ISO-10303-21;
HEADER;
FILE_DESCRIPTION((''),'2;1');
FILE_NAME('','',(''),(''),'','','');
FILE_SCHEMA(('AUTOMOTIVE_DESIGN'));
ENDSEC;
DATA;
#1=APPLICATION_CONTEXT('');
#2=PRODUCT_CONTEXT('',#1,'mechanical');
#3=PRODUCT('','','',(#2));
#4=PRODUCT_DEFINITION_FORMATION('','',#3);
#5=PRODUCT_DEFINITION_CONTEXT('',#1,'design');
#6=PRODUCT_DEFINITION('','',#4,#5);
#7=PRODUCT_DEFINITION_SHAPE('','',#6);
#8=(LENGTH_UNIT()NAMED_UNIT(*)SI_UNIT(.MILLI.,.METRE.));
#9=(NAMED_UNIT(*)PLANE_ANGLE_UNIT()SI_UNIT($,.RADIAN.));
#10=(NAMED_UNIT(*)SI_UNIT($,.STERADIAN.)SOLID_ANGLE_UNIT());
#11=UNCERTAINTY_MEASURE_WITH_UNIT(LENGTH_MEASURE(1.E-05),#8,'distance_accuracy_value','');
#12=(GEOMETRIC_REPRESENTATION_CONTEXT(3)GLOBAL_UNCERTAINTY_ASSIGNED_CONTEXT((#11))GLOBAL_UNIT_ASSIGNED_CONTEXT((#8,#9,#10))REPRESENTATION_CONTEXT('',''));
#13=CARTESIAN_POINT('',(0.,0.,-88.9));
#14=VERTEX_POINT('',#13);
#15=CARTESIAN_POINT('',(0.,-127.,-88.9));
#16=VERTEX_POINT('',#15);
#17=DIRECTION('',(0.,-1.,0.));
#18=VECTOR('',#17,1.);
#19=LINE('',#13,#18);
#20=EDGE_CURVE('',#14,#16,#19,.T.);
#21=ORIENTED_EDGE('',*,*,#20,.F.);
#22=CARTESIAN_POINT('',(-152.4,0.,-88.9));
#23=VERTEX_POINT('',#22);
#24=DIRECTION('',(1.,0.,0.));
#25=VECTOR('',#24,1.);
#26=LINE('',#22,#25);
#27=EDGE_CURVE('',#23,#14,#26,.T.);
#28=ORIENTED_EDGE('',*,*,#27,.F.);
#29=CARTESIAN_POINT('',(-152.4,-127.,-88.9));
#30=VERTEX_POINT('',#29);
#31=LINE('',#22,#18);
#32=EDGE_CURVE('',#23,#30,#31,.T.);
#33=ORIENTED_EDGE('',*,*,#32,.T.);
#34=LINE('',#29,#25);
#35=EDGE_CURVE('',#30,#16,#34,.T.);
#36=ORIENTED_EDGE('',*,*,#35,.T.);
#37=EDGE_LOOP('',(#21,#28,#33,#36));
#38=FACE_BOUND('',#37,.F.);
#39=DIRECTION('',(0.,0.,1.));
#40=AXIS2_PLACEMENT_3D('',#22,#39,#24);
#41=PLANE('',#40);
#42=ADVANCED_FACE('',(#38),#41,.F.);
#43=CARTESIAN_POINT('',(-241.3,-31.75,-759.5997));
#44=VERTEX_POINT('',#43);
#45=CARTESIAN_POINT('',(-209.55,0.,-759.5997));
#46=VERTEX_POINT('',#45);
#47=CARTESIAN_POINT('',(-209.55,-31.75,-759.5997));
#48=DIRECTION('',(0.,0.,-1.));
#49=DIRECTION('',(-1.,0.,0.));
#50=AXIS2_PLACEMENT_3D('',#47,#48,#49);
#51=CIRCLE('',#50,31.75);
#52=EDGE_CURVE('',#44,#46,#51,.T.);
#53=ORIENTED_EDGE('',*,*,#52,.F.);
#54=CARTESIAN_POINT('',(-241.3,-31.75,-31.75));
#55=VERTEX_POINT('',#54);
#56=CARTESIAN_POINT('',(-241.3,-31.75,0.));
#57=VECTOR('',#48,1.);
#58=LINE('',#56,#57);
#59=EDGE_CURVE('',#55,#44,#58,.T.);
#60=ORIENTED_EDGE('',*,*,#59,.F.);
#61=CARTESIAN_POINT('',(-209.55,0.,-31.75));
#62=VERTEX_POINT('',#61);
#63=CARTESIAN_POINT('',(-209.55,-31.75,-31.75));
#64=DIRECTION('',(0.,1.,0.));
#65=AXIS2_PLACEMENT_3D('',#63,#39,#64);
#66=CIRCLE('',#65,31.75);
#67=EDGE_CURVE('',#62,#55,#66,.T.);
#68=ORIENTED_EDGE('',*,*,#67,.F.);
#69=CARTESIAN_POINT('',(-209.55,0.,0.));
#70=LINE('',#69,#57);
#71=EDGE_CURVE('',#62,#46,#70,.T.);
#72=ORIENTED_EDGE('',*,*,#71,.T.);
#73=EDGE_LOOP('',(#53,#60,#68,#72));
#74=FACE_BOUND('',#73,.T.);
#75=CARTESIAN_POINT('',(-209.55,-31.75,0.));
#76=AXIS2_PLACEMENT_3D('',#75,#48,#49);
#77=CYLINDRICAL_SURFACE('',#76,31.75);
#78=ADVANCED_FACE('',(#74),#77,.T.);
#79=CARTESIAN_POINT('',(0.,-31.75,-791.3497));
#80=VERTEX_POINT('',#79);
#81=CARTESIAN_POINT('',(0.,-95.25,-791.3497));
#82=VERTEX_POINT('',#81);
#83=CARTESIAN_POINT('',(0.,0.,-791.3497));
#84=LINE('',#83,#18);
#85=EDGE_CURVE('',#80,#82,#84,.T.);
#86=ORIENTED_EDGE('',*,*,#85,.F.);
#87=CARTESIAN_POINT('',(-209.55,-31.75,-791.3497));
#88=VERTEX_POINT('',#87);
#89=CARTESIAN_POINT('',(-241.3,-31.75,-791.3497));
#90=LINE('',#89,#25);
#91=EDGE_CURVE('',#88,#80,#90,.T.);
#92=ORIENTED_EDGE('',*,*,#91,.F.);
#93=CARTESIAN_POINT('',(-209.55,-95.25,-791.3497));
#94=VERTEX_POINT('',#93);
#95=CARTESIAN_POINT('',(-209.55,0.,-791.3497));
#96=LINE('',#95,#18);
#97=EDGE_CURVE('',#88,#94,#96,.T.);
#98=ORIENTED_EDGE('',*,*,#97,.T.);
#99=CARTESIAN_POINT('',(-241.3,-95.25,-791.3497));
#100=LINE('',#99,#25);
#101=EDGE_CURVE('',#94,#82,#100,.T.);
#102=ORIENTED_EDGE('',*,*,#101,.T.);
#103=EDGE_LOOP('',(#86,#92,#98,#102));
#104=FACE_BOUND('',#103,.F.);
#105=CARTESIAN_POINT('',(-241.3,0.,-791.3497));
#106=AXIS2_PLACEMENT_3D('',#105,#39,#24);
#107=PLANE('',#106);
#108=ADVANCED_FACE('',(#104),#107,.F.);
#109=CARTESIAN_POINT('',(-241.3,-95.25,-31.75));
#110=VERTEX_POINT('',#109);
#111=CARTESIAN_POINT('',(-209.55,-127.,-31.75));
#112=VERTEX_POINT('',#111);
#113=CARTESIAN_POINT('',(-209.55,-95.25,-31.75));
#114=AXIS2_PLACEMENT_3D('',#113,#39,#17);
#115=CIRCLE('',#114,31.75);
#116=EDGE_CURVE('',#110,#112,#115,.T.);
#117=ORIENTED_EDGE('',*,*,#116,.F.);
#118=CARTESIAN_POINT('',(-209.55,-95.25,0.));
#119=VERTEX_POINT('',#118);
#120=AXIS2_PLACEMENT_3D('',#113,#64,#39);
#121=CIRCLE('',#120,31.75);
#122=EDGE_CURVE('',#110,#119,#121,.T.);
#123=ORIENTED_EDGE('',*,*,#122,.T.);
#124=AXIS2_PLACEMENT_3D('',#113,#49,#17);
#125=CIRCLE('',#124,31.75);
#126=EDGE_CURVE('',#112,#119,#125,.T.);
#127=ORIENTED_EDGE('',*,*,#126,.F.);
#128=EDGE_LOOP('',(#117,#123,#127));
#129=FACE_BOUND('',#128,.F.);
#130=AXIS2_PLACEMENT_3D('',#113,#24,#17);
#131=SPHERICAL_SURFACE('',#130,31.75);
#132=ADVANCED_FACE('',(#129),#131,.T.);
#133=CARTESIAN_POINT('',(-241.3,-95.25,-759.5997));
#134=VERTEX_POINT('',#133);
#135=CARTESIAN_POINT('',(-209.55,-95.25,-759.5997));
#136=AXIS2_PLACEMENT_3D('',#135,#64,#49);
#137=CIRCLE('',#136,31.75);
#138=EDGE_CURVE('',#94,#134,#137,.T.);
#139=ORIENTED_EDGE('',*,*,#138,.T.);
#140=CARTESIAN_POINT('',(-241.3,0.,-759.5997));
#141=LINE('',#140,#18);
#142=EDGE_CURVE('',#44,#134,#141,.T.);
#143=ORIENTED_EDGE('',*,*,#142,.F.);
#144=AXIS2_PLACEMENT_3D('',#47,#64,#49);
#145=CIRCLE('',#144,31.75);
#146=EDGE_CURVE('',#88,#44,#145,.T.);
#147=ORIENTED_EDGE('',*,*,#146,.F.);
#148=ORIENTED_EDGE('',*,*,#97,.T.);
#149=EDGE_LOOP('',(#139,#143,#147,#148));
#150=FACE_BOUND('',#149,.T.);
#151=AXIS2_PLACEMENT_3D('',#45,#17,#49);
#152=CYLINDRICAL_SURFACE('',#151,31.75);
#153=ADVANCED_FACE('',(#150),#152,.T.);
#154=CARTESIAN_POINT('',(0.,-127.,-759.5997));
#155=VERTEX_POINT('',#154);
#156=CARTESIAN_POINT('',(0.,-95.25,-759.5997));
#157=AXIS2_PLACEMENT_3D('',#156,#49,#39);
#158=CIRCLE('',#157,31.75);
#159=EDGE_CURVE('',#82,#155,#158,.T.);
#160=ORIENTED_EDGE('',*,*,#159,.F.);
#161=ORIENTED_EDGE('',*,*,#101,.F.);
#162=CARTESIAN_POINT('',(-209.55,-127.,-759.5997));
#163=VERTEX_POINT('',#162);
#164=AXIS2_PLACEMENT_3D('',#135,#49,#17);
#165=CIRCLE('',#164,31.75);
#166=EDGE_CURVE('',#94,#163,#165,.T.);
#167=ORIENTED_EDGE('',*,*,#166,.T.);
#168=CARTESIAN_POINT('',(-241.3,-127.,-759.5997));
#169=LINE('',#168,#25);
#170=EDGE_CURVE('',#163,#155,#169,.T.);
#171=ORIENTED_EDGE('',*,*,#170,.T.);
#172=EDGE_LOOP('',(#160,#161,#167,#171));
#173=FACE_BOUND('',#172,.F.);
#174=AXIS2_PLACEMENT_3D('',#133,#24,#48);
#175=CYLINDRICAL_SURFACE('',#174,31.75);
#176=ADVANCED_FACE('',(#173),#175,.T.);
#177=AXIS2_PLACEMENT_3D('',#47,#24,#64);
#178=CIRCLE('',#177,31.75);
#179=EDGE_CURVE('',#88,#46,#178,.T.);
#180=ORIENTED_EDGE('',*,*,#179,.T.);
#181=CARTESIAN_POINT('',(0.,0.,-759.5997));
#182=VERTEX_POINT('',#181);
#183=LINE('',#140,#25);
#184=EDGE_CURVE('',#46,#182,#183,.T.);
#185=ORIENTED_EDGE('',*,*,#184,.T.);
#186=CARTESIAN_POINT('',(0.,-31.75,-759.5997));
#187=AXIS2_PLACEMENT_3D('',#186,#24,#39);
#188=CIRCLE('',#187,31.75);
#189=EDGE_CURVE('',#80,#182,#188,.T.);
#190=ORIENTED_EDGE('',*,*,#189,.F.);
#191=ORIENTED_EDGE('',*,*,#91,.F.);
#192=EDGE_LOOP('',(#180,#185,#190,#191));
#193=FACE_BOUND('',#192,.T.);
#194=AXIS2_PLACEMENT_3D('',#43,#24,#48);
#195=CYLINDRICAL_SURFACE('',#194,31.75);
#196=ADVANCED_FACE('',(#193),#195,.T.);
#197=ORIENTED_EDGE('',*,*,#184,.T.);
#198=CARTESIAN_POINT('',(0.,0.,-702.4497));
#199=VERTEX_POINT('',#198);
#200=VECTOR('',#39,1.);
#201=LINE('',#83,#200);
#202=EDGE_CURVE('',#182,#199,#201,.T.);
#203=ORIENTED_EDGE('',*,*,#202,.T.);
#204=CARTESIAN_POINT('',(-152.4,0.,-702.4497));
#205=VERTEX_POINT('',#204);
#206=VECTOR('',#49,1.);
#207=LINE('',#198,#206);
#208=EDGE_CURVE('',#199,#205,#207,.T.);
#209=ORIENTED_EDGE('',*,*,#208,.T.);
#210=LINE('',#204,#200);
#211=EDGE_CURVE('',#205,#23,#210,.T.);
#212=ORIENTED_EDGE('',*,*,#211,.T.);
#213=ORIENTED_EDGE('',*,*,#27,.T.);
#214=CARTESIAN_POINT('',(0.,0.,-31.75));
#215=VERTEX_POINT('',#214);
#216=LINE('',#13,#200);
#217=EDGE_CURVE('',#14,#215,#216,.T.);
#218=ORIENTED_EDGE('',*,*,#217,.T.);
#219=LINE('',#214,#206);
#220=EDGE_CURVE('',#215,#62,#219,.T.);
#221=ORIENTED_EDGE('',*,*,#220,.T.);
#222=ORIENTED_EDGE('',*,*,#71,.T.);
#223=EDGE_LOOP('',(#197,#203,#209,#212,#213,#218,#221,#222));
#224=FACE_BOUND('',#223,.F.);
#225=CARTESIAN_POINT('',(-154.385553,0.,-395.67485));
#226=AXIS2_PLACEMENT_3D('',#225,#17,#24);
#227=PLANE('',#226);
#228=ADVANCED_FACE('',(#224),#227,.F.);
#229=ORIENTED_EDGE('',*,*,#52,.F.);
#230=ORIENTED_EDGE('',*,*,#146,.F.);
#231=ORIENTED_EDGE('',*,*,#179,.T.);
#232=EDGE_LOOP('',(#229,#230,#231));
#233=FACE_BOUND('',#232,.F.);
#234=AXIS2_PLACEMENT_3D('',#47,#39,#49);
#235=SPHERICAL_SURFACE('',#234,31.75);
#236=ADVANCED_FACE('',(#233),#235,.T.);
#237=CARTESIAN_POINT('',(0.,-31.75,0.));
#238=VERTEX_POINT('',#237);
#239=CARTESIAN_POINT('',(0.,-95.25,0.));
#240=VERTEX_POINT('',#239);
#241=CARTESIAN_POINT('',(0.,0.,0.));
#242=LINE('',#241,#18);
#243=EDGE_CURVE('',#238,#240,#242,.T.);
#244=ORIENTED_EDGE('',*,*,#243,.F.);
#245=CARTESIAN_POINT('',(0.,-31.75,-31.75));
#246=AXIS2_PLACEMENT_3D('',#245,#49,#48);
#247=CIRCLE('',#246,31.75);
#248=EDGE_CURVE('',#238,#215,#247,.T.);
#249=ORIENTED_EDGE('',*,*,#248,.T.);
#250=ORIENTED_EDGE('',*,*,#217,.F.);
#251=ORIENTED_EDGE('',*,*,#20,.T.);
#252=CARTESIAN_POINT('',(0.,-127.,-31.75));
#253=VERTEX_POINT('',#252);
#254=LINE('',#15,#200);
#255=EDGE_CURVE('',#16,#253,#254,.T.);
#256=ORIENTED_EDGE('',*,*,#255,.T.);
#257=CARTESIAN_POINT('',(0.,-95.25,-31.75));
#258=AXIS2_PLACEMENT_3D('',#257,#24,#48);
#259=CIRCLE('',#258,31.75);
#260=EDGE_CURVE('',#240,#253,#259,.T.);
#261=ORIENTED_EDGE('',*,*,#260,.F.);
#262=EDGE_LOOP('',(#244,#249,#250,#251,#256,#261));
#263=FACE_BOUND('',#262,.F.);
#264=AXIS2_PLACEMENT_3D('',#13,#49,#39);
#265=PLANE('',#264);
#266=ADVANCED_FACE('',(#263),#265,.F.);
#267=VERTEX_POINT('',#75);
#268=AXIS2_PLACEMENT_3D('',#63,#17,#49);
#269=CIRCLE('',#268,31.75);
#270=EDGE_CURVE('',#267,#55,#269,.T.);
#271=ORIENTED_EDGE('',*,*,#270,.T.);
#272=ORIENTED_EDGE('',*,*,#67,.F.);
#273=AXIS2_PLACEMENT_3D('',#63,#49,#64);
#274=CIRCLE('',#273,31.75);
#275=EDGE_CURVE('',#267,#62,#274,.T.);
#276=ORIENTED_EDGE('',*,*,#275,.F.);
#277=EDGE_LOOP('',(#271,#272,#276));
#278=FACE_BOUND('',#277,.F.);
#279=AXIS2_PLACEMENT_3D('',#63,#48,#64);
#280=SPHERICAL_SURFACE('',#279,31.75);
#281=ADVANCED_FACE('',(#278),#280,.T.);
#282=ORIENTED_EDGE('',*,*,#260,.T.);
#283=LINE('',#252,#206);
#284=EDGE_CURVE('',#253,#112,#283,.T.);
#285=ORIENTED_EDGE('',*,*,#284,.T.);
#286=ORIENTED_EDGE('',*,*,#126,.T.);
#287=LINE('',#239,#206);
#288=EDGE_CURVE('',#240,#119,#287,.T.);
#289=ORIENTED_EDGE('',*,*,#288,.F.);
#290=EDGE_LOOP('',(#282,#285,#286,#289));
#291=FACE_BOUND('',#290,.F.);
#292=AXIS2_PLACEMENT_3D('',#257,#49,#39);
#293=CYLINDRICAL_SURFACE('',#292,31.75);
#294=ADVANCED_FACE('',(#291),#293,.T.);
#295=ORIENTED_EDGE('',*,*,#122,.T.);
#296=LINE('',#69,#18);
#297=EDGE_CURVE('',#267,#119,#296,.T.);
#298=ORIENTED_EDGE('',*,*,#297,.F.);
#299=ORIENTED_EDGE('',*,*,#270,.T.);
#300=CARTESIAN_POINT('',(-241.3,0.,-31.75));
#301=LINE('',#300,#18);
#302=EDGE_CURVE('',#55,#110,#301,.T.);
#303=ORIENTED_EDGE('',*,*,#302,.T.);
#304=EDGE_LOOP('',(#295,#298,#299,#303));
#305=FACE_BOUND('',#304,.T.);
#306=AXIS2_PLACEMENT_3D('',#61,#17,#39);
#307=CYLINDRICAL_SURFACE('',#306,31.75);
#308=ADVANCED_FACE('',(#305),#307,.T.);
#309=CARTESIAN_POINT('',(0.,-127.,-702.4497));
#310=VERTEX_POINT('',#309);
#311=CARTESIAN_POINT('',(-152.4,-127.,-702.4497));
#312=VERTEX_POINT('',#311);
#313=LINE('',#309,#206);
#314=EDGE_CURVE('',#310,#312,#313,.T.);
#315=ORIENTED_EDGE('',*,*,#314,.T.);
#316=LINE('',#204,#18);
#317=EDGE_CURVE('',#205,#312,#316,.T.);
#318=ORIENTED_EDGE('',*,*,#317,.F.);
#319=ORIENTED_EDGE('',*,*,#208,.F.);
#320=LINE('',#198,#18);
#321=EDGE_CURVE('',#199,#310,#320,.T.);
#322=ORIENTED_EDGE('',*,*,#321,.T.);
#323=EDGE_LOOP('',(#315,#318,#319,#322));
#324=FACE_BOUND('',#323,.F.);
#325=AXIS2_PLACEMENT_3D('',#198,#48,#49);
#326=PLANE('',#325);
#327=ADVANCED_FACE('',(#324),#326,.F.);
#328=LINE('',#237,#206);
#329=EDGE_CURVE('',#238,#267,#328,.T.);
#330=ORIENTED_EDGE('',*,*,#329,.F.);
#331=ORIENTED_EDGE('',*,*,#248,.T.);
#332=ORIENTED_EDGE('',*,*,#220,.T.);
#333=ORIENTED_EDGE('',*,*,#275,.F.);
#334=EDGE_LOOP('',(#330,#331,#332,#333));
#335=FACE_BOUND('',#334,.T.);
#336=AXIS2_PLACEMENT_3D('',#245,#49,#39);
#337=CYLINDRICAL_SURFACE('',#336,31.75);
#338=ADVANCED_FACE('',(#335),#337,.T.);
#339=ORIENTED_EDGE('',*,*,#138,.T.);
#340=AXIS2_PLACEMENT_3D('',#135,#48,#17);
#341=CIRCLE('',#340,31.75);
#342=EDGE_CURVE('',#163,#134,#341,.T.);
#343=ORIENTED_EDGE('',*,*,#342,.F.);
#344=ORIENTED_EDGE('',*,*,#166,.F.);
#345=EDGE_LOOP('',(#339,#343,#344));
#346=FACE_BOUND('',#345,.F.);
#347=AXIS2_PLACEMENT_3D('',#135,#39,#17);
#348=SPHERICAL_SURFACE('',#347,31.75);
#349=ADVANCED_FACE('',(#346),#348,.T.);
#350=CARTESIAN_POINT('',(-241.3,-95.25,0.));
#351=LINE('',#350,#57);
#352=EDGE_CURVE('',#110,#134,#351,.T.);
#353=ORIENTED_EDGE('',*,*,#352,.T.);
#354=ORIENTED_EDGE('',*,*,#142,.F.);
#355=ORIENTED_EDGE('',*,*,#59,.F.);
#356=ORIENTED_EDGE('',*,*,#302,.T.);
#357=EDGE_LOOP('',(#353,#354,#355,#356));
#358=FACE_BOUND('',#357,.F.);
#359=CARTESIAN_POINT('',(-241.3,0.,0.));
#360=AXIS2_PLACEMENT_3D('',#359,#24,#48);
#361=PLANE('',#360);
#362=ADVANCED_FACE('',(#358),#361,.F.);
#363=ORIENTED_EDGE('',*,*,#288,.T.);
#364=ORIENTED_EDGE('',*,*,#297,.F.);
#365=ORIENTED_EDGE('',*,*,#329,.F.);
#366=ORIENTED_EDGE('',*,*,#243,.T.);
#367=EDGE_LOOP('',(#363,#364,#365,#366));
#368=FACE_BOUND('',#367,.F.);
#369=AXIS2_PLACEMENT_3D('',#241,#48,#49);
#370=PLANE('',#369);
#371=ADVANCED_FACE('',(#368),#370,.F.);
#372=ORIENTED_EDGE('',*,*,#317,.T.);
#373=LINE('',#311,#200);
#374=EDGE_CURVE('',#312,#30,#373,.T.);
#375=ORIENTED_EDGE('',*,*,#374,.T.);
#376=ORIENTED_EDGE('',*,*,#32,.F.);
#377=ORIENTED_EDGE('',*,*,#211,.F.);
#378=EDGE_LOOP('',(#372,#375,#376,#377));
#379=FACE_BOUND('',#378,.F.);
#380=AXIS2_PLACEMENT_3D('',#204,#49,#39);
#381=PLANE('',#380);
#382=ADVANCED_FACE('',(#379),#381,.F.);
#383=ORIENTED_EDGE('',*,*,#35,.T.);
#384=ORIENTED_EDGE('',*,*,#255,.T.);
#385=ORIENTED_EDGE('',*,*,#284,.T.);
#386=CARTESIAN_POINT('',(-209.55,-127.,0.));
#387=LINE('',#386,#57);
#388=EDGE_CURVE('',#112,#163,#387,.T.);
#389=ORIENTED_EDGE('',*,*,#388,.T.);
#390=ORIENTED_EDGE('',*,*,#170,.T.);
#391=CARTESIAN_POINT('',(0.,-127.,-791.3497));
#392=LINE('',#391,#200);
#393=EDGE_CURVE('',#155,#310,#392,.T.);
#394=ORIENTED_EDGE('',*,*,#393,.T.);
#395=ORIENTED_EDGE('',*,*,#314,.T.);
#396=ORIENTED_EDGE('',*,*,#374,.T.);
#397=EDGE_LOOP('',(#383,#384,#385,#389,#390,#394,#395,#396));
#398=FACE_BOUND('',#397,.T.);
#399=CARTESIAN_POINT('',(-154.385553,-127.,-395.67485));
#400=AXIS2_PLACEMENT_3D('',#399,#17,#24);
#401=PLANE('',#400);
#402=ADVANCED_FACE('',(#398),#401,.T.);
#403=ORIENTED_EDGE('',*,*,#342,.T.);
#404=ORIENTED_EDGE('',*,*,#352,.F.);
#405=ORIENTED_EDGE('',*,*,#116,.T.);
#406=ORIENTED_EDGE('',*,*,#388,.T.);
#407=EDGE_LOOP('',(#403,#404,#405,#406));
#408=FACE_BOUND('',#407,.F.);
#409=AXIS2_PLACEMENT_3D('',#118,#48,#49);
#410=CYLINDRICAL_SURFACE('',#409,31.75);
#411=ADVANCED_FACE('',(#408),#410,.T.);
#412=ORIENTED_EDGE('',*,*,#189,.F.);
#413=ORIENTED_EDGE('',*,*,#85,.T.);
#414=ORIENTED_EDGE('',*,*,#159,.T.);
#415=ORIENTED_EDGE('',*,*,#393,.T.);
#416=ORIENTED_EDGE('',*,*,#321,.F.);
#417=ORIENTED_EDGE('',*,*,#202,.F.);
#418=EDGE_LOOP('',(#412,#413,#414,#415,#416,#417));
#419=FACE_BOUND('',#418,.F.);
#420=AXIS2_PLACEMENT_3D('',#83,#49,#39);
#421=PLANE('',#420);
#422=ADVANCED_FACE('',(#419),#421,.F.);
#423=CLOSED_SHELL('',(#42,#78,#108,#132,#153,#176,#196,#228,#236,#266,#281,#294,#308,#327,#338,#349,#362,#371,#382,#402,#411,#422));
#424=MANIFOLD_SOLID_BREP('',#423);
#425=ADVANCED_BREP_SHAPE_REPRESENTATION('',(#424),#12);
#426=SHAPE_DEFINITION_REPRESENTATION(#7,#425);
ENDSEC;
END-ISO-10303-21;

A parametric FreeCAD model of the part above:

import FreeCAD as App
import Part
import Sketcher
from FreeCAD import Vector
Q = App.Units.Quantity


def edges_at(feature, points):
    """Names of the edges that pass closest to the given points."""
    edges = feature.Shape.Edges
    near = lambda p: min(range(len(edges)), key=lambda i: edges[i].distToShape(Part.Vertex(*p))[0])
    return sorted({f"Edge{near(p) + 1}" for p in points})


def add_polygon(sketch, points):
    """Adds a closed chain of lines whose ends are joined by coincident constraints."""
    first, n = sketch.GeometryCount, len(points)
    for a, b in zip(points, points[1:] + points[:1]):
        sketch.addGeometry(Part.LineSegment(App.Vector(*a, 0), App.Vector(*b, 0)), False)
    for i in range(n):
        sketch.addConstraint(Sketcher.Constraint("Coincident", first + i, 2, first + (i + 1) % n, 1))

doc = App.newDocument("Part")
body = doc.addObject("PartDesign::Body", "Body")

# Sketch on XZ plane
sketch1 = body.newObject("Sketcher::SketchObject", "Sketch")
sketch1.AttachmentSupport = (doc.getObject("XZ_Plane"), [""])
sketch1.MapMode = "FlatFace"
add_polygon(sketch1, [(0, -89), (0, 0), (-241, 0), (-241, -791), (0, -791), (0, -702), (-152, -702), (-152, -89)])  # lines 0-7
sketch1.addConstraint([
    Sketcher.Constraint("Vertical", 0),
    Sketcher.Constraint("Horizontal", 1),
    Sketcher.Constraint("Vertical", 2),
    Sketcher.Constraint("Horizontal", 3),
    Sketcher.Constraint("Vertical", 4),
    Sketcher.Constraint("Horizontal", 5),
    Sketcher.Constraint("Vertical", 6),
    Sketcher.Constraint("Horizontal", 7),
    Sketcher.Constraint("Coincident", 0, 2, -1, 1),
    Sketcher.Constraint("PointOnObject", 3, 2, -2),
    Sketcher.Constraint("Equal", 0, 4),
    Sketcher.Constraint("DistanceX", 5, 2, 5, 1, Q("6 in")),
    Sketcher.Constraint("DistanceX", 1, 2, 1, 1, Q("9.5 in")),
    Sketcher.Constraint("DistanceY", 0, 1, 0, 2, Q("3.5 in")),
    Sketcher.Constraint("DistanceY", 2, 2, 2, 1, Q("31.1555 in")),
])
pad1 = body.newObject("PartDesign::Pad", "Pad")
pad1.Profile = sketch1
pad1.Length = Q("5 in")
doc.recompute()

fillet = body.newObject("PartDesign::Fillet", "Fillet")
fillet.Base = (pad1, edges_at(pad1, [
    (-120.65, -127, 0),
    (-241.3, -127, -395.675),
    (-241.3, 0, -395.675),
    (-120.65, 0, 0),
    (-120.65, -127, -791.35),
    (-241.3, -63.5, -791.35),
    (-241.3, -63.5, 0),
    (-120.65, 0, -791.35),
]))
fillet.Radius = Q("1.25 in")

doc.recompute()
